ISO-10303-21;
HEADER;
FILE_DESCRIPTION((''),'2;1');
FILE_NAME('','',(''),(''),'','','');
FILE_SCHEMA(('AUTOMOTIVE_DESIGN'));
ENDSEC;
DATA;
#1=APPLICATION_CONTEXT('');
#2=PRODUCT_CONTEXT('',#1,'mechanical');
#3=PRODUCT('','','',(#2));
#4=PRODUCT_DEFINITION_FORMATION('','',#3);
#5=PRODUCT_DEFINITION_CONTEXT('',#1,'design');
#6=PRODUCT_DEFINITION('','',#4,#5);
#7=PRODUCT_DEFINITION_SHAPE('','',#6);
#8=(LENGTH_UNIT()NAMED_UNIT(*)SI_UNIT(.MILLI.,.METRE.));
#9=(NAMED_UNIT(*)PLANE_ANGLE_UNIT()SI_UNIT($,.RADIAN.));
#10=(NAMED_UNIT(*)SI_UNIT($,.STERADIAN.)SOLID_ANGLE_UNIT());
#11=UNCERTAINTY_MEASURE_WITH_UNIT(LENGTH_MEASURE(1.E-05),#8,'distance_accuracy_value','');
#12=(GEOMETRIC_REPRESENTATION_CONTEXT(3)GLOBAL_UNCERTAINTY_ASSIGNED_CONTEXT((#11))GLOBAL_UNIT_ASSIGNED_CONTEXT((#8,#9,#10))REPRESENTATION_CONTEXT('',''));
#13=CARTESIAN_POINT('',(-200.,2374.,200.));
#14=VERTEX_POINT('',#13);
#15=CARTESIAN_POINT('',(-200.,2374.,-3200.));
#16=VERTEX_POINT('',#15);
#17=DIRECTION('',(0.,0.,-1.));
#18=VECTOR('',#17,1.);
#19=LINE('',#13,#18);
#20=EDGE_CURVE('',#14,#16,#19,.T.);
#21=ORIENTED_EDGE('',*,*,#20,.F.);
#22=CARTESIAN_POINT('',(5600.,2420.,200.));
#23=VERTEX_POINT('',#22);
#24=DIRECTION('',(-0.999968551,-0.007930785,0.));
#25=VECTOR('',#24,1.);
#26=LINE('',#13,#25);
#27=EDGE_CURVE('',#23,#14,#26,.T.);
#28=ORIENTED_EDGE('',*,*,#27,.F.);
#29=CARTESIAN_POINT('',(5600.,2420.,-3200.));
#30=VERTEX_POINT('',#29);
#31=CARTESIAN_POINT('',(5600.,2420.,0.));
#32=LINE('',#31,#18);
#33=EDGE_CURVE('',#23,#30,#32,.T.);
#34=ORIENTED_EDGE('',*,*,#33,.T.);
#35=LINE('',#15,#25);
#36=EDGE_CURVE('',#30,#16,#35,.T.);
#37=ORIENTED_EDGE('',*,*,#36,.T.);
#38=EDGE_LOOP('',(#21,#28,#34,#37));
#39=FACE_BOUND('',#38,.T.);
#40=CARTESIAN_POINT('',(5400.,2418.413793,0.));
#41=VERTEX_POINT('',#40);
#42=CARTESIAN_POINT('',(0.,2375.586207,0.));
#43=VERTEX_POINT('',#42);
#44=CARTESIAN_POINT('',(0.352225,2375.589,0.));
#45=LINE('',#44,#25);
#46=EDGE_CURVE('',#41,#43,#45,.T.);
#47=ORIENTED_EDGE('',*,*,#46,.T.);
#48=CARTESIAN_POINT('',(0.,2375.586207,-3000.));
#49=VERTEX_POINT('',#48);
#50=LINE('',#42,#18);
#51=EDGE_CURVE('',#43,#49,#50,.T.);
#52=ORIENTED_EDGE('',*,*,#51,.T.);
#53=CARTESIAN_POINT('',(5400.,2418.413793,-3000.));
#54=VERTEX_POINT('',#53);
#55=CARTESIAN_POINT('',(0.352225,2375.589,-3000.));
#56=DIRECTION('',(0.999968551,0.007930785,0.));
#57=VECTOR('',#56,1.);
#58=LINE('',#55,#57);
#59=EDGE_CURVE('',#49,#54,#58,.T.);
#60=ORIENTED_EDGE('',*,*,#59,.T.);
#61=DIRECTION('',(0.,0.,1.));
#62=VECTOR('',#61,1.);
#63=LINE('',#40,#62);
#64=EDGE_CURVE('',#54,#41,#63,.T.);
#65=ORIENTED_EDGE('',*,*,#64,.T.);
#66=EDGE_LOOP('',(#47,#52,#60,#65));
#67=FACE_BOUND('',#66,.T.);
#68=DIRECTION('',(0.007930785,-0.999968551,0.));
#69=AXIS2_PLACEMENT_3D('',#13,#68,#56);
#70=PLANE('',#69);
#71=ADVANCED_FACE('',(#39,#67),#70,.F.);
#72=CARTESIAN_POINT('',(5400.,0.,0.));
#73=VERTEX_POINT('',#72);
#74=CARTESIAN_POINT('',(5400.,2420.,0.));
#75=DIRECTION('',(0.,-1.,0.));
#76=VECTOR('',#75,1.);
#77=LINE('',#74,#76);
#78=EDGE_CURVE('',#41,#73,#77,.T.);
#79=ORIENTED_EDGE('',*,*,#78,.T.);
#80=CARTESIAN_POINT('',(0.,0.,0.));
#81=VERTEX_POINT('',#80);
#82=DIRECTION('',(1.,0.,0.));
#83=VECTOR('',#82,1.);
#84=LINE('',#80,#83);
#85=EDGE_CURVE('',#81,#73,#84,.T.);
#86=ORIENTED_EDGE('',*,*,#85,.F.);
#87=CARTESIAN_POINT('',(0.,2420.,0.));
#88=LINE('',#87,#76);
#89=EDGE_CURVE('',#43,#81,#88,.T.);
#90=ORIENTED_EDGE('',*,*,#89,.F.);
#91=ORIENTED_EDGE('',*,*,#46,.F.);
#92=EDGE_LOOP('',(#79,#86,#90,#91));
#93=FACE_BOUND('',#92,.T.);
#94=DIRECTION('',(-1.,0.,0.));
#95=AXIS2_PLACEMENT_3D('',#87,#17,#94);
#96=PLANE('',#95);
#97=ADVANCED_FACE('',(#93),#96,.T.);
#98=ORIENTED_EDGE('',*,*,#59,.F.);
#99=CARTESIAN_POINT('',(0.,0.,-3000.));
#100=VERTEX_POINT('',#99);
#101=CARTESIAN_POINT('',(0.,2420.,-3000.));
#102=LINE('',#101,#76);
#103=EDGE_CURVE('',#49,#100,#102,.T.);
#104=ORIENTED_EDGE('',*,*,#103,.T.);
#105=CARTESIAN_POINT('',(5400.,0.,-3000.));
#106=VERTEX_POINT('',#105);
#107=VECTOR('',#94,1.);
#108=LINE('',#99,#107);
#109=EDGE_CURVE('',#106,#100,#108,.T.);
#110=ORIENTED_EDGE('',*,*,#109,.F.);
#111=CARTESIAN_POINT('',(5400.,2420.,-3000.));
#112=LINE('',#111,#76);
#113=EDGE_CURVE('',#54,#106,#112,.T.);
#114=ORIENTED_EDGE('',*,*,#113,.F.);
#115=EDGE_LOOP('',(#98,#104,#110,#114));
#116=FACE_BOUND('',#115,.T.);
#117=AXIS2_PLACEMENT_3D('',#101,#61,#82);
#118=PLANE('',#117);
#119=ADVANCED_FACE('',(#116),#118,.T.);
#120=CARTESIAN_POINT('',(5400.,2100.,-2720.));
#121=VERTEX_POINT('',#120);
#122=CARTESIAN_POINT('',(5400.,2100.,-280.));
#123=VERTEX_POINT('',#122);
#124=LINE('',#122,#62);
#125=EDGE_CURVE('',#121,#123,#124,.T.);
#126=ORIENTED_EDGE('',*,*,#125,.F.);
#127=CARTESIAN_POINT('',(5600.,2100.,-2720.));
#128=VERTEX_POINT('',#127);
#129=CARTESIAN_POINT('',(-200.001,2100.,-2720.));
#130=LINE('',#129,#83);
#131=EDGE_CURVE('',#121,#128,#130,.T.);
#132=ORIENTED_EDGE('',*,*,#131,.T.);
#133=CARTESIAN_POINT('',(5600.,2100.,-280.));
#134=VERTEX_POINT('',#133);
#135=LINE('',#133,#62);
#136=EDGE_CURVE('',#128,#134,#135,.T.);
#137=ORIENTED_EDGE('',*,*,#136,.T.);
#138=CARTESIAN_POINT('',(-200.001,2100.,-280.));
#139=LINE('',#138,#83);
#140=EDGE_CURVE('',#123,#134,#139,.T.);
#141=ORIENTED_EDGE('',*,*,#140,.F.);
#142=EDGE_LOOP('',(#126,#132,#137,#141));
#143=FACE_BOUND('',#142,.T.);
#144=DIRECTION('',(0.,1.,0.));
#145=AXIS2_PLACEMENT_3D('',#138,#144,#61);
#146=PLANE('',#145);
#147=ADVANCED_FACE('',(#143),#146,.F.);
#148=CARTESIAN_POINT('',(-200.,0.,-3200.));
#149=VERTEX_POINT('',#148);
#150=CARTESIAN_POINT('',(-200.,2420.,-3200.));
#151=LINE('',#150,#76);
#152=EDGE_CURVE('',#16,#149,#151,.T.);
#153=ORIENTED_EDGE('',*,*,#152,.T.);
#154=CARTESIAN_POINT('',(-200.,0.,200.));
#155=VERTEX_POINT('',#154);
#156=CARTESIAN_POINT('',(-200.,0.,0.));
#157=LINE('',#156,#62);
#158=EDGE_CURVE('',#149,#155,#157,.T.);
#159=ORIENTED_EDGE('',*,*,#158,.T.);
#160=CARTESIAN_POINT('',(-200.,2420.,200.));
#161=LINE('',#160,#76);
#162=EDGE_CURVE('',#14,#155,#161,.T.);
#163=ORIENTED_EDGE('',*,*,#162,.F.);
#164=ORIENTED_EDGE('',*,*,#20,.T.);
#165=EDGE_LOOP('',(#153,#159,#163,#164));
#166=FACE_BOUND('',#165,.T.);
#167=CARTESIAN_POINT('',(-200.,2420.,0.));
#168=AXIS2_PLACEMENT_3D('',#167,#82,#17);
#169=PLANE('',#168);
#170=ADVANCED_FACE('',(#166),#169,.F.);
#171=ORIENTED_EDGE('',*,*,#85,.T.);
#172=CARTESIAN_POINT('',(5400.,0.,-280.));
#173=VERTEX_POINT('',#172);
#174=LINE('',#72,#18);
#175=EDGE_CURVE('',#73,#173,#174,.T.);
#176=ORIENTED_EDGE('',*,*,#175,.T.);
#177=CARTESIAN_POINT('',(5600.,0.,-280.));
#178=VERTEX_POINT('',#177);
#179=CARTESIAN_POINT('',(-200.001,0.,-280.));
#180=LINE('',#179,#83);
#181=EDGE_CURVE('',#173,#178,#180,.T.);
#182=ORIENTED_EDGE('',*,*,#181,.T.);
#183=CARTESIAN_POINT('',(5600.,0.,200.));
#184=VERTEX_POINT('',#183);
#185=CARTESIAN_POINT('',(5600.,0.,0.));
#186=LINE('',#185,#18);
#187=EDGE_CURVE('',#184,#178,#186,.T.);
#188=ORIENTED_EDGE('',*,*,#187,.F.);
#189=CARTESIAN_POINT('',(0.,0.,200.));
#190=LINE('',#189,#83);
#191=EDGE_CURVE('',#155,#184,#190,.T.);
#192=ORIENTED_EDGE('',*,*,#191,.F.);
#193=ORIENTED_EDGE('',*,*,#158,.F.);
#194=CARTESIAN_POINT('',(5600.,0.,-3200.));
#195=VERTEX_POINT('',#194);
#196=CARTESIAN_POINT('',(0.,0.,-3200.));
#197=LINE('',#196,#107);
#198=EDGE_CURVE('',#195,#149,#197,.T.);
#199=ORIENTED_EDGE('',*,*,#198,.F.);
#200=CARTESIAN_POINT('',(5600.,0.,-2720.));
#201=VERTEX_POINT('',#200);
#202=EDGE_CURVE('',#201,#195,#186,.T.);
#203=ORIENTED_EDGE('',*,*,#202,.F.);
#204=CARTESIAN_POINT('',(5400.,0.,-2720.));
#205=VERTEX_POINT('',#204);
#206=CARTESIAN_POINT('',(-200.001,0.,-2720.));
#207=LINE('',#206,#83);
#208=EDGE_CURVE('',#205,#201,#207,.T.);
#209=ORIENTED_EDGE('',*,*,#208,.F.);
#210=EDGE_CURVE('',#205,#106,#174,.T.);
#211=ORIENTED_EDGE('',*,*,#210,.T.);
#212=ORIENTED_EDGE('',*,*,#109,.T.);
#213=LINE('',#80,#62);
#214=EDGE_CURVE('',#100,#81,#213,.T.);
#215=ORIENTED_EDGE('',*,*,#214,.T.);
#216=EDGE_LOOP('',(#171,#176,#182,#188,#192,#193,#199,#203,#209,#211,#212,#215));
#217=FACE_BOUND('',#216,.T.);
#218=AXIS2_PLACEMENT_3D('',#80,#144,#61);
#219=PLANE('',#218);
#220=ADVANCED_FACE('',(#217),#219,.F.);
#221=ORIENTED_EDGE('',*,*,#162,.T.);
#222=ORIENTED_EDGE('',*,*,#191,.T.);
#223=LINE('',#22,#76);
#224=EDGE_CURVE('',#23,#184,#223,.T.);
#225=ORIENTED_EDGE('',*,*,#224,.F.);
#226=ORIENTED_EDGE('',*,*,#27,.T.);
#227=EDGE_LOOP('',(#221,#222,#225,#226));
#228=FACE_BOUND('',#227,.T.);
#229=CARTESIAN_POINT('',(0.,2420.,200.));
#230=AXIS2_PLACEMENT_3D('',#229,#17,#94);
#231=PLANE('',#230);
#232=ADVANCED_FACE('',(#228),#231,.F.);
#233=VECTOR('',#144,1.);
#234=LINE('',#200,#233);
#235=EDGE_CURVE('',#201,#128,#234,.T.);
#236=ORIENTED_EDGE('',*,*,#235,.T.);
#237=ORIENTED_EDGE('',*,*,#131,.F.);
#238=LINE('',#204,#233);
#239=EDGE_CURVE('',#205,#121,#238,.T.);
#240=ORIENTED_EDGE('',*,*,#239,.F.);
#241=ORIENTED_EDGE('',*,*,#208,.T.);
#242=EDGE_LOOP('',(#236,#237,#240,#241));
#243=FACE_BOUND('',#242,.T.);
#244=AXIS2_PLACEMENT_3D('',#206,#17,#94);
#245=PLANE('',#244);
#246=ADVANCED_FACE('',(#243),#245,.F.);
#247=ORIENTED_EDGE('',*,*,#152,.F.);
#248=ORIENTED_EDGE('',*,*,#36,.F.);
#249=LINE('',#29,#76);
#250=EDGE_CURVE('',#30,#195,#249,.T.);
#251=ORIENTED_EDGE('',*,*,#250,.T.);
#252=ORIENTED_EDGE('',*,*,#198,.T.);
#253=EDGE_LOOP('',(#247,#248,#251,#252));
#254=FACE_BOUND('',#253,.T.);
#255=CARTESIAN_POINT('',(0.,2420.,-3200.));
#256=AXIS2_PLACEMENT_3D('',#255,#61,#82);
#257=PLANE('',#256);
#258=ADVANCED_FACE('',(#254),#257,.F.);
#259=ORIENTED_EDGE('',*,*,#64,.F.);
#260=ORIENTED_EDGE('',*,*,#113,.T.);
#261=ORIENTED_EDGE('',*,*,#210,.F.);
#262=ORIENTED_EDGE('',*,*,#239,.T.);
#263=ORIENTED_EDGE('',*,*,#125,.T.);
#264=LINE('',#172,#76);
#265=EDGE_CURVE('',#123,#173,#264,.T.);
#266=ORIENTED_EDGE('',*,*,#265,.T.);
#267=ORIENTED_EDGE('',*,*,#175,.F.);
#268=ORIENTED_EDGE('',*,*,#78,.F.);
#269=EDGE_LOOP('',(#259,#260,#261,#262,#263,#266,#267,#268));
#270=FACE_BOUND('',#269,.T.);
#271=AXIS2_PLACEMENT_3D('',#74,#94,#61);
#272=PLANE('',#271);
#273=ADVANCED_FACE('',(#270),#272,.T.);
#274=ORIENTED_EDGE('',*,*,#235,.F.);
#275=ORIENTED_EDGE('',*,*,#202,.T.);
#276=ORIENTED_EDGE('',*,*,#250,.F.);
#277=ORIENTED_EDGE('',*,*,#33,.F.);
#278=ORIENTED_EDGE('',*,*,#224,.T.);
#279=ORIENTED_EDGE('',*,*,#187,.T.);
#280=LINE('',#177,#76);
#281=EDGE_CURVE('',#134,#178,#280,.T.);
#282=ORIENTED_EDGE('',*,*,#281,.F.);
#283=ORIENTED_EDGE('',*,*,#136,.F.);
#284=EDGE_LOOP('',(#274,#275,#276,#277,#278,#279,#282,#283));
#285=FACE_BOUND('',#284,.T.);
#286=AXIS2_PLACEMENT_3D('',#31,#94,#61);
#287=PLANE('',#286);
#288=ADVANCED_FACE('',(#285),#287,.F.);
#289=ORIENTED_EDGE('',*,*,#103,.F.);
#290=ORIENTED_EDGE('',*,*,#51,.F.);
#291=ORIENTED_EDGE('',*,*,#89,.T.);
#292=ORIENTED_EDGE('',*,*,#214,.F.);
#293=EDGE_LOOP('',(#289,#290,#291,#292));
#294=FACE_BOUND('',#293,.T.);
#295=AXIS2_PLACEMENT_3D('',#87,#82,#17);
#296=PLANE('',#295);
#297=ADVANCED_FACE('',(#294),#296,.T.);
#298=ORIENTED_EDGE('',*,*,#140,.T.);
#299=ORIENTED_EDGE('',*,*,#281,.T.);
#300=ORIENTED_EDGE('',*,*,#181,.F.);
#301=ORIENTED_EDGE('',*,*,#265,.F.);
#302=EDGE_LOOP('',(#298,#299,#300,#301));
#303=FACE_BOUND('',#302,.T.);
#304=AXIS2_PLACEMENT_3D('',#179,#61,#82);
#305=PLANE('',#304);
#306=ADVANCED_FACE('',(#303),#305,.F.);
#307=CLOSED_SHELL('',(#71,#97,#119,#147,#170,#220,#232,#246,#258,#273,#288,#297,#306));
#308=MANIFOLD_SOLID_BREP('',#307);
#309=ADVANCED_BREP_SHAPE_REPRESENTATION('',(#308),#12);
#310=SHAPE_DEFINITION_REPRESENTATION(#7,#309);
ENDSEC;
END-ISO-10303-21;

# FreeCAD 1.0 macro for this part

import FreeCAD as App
import Part
import Sketcher
Q = App.Units.Quantity

doc = App.newDocument("Part")
params = doc.addObject("Spreadsheet::Sheet", "Params")
for row, (alias, value) in enumerate([
    ("sketch1_width", "5800 mm"),
    ("sketch1_width2", "5400 mm"),
    ("sketch1_height", "3400 mm"),
    ("sketch1_height2", "3000 mm"),
    ("pad1_length", "2420 mm"),
    ("sketch2_width", "2100 mm"),
    ("sketch2_height", "2440 mm"),
    ("sketch3_width", "5800 mm"),
    ("sketch3_height", "46 mm"),
], start=1):
    params.set(f"A{row}", alias)
    params.set(f"B{row}", "=" + value)
    params.setAlias(f"B{row}", alias)

body = doc.addObject("PartDesign::Body", "Body")

# Sketch on XZ plane
sketch1 = doc.addObject("Sketcher::SketchObject", "Sketch")
body.addObject(sketch1)
sketch1.AttachmentSupport = (doc.XZ_Plane, [""])
sketch1.MapMode = "FlatFace"
sketch1.addGeometry([
    Part.LineSegment(App.Vector(-200, -3200, 0), App.Vector(-200, 200, 0)),  # 0
    Part.LineSegment(App.Vector(-200, 200, 0), App.Vector(5600, 200, 0)),  # 1
    Part.LineSegment(App.Vector(5600, 200, 0), App.Vector(5600, -3200, 0)),  # 2
    Part.LineSegment(App.Vector(5600, -3200, 0), App.Vector(-200, -3200, 0)),  # 3
    Part.LineSegment(App.Vector(5400, 0, 0), App.Vector(0, 0, 0)),  # 4
    Part.LineSegment(App.Vector(0, 0, 0), App.Vector(0, -3000, 0)),  # 5
    Part.LineSegment(App.Vector(0, -3000, 0), App.Vector(5400, -3000, 0)),  # 6
    Part.LineSegment(App.Vector(5400, -3000, 0), App.Vector(5400, 0, 0)),  # 7
], False)
sketch1.addConstraint([
    Sketcher.Constraint("Coincident", 0, 2, 1, 1),
    Sketcher.Constraint("Coincident", 1, 2, 2, 1),
    Sketcher.Constraint("Coincident", 2, 2, 3, 1),
    Sketcher.Constraint("Coincident", 3, 2, 0, 1),
    Sketcher.Constraint("Coincident", 4, 2, 5, 1),
    Sketcher.Constraint("Coincident", 5, 2, 6, 1),
    Sketcher.Constraint("Coincident", 6, 2, 7, 1),
    Sketcher.Constraint("Coincident", 7, 2, 4, 1),
    Sketcher.Constraint("Vertical", 0),
    Sketcher.Constraint("Horizontal", 1),
    Sketcher.Constraint("Vertical", 2),
    Sketcher.Constraint("Horizontal", 3),
    Sketcher.Constraint("Horizontal", 4),
    Sketcher.Constraint("Vertical", 5),
    Sketcher.Constraint("Horizontal", 6),
    Sketcher.Constraint("Vertical", 7),
    Sketcher.Constraint("Coincident", 4, 2, -1, 1),
    Sketcher.Constraint("DistanceX", 1, 1, 1, 2, Q("5800 mm")),
    Sketcher.Constraint("DistanceX", 4, 2, 4, 1, Q("5400 mm")),
    Sketcher.Constraint("DistanceY", 0, 1, 0, 2, Q("3400 mm")),
    Sketcher.Constraint("DistanceY", 5, 2, 5, 1, Q("3000 mm")),
    Sketcher.Constraint("DistanceX", 0, 2, -1, 1, Q("200 mm")),
    Sketcher.Constraint("DistanceY", -1, 1, 0, 2, Q("200 mm")),
])
sketch1.setExpression("Constraints[17]", "Params.sketch1_width")
sketch1.setExpression("Constraints[18]", "Params.sketch1_width2")
sketch1.setExpression("Constraints[19]", "Params.sketch1_height")
sketch1.setExpression("Constraints[20]", "Params.sketch1_height2")
pad1 = doc.addObject("PartDesign::Pad", "Pad")
body.addObject(pad1)
pad1.Profile = sketch1
pad1.setExpression("Length", "Params.pad1_length")
pad1.Reversed = True

# Sketch on YZ plane
sketch2 = doc.addObject("Sketcher::SketchObject", "Sketch001")
body.addObject(sketch2)
sketch2.AttachmentSupport = (doc.YZ_Plane, [""])
sketch2.MapMode = "FlatFace"
sketch2.AttachmentOffset = App.Placement(App.Vector(0, 0, 5600), App.Rotation())
sketch2.addGeometry([
    Part.LineSegment(App.Vector(2100, -280, 0), App.Vector(0, -280, 0)),
    Part.LineSegment(App.Vector(0, -280, 0), App.Vector(0, -2720, 0)),
    Part.LineSegment(App.Vector(0, -2720, 0), App.Vector(2100, -2720, 0)),
    Part.LineSegment(App.Vector(2100, -2720, 0), App.Vector(2100, -280, 0)),
], False)
sketch2.addConstraint([
    Sketcher.Constraint("Coincident", 0, 2, 1, 1),
    Sketcher.Constraint("Coincident", 1, 2, 2, 1),
    Sketcher.Constraint("Coincident", 2, 2, 3, 1),
    Sketcher.Constraint("Coincident", 3, 2, 0, 1),
    Sketcher.Constraint("Horizontal", 0),
    Sketcher.Constraint("Vertical", 1),
    Sketcher.Constraint("Horizontal", 2),
    Sketcher.Constraint("Vertical", 3),
    Sketcher.Constraint("PointOnObject", 0, 2, -2),
    Sketcher.Constraint("DistanceX", 0, 2, 0, 1, Q("2100 mm")),
    Sketcher.Constraint("DistanceY", 1, 2, 1, 1, Q("2440 mm")),
    Sketcher.Constraint("DistanceY", 0, 2, -1, 1, Q("280 mm")),
])
sketch2.setExpression("Constraints[9]", "Params.sketch2_width")
sketch2.setExpression("Constraints[10]", "Params.sketch2_height")
pocket1 = doc.addObject("PartDesign::Pocket", "Pocket")
body.addObject(pocket1)
pocket1.Profile = sketch2
pocket1.Type = "UpToFirst"

# Sketch on XY plane
sketch3 = doc.addObject("Sketcher::SketchObject", "Sketch002")
body.addObject(sketch3)
sketch3.AttachmentSupport = (doc.XY_Plane, [""])
sketch3.MapMode = "FlatFace"
sketch3.AttachmentOffset = App.Placement(App.Vector(0, 0, -3200), App.Rotation())
sketch3.addGeometry([
    Part.LineSegment(App.Vector(-200, 2420, 0), App.Vector(5600, 2420, 0)),
    Part.LineSegment(App.Vector(5600, 2420, 0), App.Vector(-200, 2374, 0)),
    Part.LineSegment(App.Vector(-200, 2374, 0), App.Vector(-200, 2420, 0)),
], False)
sketch3.addConstraint([
    Sketcher.Constraint("Coincident", 0, 2, 1, 1),
    Sketcher.Constraint("Coincident", 1, 2, 2, 1),
    Sketcher.Constraint("Coincident", 2, 2, 0, 1),
    Sketcher.Constraint("Horizontal", 0),
    Sketcher.Constraint("Vertical", 2),
    Sketcher.Constraint("DistanceX", 0, 1, 0, 2, Q("5800 mm")),
    Sketcher.Constraint("DistanceY", 2, 1, 2, 2, Q("46 mm")),
    Sketcher.Constraint("DistanceX", -1, 1, 0, 2, Q("5600 mm")),
    Sketcher.Constraint("DistanceY", -1, 1, 0, 2, Q("2420 mm")),
])
sketch3.setExpression("Constraints[5]", "Params.sketch3_width")
sketch3.setExpression("Constraints[6]", "Params.sketch3_height")
pocket2 = doc.addObject("PartDesign::Pocket", "Pocket001")
body.addObject(pocket2)
pocket2.Profile = sketch3
pocket2.Type = "ThroughAll"
pocket2.Reversed = True

doc.recompute()
